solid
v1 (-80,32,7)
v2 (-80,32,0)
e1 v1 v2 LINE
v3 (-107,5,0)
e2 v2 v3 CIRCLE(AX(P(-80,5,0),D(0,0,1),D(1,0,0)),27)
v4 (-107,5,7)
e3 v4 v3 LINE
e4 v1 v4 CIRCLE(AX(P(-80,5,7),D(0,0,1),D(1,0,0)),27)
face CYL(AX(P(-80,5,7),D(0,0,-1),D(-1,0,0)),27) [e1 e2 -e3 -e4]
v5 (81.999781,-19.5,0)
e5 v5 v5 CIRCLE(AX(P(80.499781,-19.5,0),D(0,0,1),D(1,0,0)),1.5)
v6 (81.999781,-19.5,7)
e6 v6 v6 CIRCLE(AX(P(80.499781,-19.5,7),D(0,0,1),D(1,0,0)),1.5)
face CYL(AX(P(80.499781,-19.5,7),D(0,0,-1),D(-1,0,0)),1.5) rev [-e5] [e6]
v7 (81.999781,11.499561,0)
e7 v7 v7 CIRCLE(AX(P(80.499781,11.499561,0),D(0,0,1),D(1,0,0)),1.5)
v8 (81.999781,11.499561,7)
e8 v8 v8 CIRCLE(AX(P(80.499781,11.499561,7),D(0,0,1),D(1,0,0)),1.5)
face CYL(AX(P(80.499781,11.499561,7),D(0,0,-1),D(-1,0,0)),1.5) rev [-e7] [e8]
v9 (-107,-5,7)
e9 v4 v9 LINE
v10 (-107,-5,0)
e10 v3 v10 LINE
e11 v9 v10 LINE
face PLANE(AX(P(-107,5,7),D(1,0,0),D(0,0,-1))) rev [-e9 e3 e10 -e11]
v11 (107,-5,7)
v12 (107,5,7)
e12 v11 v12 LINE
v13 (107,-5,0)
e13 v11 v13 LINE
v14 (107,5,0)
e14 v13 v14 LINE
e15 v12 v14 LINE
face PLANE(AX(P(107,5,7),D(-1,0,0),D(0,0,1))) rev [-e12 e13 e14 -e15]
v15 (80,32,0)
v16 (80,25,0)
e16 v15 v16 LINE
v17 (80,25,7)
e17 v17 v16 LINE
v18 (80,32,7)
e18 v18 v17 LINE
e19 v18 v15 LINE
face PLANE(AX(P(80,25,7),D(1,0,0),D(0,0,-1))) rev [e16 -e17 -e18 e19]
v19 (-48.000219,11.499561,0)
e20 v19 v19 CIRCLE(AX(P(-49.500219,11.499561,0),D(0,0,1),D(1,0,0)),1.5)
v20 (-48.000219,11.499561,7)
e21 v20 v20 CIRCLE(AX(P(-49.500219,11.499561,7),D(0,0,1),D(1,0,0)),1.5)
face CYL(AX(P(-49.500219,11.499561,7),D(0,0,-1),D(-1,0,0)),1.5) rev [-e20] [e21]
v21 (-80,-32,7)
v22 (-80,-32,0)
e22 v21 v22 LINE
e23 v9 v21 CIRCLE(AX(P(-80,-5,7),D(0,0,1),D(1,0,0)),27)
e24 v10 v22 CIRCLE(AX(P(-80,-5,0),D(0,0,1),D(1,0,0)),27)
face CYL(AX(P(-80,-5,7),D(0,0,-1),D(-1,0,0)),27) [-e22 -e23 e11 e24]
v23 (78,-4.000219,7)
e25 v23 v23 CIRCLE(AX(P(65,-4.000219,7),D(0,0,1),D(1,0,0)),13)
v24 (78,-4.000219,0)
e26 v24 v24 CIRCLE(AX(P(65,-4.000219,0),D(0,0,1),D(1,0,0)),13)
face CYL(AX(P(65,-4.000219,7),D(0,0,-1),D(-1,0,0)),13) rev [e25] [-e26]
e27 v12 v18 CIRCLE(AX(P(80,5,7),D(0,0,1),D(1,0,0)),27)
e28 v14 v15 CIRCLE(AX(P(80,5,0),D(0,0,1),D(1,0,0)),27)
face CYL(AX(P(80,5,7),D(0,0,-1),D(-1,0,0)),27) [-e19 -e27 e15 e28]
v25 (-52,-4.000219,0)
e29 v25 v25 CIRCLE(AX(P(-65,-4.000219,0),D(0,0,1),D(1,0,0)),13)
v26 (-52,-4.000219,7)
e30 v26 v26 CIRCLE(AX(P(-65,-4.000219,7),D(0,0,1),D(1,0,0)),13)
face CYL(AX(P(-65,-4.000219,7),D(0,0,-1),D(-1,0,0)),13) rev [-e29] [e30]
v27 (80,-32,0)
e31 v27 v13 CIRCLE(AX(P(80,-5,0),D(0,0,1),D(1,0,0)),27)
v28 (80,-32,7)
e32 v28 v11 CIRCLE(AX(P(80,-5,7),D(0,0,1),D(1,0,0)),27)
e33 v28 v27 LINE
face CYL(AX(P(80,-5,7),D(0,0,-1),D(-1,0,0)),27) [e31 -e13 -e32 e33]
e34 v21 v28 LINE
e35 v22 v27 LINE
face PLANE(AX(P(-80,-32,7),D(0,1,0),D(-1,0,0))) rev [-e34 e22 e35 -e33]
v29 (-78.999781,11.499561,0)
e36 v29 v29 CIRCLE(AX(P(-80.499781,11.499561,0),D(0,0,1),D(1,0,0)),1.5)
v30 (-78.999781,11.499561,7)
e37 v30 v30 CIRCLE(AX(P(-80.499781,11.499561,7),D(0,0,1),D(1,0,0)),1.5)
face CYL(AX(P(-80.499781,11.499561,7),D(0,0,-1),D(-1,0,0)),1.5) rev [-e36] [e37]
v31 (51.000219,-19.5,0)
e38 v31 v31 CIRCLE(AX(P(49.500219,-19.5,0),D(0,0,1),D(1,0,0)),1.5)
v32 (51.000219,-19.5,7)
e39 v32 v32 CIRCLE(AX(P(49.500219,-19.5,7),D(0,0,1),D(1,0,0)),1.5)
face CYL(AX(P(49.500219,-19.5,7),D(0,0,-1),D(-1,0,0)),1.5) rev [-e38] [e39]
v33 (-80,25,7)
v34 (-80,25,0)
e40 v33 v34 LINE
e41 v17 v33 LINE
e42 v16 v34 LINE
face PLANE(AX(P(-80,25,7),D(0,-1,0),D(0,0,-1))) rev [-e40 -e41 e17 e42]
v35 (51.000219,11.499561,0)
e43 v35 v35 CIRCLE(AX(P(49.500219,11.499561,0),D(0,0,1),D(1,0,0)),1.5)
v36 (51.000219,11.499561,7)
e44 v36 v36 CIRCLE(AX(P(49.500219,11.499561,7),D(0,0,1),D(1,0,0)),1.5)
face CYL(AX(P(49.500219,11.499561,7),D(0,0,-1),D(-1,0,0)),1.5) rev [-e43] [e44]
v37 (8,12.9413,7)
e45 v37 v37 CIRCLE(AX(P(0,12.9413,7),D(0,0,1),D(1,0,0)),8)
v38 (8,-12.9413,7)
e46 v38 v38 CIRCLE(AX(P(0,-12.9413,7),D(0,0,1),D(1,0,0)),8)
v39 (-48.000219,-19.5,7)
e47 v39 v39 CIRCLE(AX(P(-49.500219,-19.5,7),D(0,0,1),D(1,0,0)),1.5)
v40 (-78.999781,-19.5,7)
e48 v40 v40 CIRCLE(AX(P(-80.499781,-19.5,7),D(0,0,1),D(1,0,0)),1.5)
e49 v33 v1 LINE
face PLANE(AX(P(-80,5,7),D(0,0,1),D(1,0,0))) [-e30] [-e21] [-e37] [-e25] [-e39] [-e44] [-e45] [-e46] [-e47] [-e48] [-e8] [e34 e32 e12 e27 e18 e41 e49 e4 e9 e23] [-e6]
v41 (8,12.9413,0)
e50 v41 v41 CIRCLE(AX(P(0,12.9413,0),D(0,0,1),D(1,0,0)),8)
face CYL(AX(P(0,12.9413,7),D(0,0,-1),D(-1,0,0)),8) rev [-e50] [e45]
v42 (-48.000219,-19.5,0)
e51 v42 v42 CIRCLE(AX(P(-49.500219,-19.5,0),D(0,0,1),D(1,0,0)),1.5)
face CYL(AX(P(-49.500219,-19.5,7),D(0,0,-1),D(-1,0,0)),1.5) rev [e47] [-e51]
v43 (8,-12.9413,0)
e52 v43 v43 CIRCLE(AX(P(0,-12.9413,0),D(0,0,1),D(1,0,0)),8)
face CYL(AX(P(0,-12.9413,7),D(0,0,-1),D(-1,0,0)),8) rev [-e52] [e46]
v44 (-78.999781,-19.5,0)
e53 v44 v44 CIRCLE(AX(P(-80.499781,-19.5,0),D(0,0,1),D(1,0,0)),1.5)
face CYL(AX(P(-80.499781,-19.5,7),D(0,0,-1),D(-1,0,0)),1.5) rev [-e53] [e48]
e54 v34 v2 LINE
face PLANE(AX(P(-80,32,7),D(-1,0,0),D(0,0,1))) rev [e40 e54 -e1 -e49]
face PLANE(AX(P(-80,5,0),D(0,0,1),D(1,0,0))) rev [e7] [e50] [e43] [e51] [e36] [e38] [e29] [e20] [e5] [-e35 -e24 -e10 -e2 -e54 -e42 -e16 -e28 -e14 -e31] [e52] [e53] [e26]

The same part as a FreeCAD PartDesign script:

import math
import FreeCAD as App
import Part
import Sketcher

V = App.Vector
Q = App.Units.Quantity

doc = App.newDocument("Part")
params = doc.addObject("Spreadsheet::Sheet", "Params")
for row, (alias, value) in enumerate([
    ("sketch1_diameter", "3 mm"),
    ("sketch1_diameter2", "16 mm"),
    ("sketch1_diameter3", "26 mm"),
    ("sketch1_radius", "27 mm"),
    ("sketch1_width", "160 mm"),
    ("pad1_length", "7 mm"),
], start=1):
    params.set(f"A{row}", alias)
    params.set(f"B{row}", "=" + value)
    params.setAlias(f"B{row}", alias)

body = doc.addObject("PartDesign::Body", "Body")

# Sketch on XY plane
sketch1 = body.newObject("Sketcher::SketchObject", "Sketch")
sketch1.AttachmentSupport = (doc.getObject("XY_Plane"), [""])
sketch1.MapMode = "FlatFace"
sketch1.addGeometry(Part.LineSegment(V(-80, 25, 0), V(-80, 32, 0)), False)
sketch1.addGeometry(Part.ArcOfCircle(Part.Circle(V(-80, 5, 0), V(0, 0, 1), 27), math.radians(90), math.radians(180)), False)
sketch1.addGeometry(Part.LineSegment(V(-107, 5, 0), V(-107, -5, 0)), False)
sketch1.addGeometry(Part.ArcOfCircle(Part.Circle(V(-80, -5, 0), V(0, 0, 1), 27), math.radians(180), math.radians(270)), False)
sketch1.addGeometry(Part.LineSegment(V(-80, -32, 0), V(80, -32, 0)), False)
sketch1.addGeometry(Part.ArcOfCircle(Part.Circle(V(80, -5, 0), V(0, 0, 1), 27), math.radians(-90), math.radians(0)), False)
sketch1.addGeometry(Part.LineSegment(V(107, -5, 0), V(107, 5, 0)), False)
sketch1.addGeometry(Part.ArcOfCircle(Part.Circle(V(80, 5, 0), V(0, 0, 1), 27), math.radians(0), math.radians(90)), False)
sketch1.addGeometry(Part.LineSegment(V(80, 32, 0), V(80, 25, 0)), False)
sketch1.addGeometry(Part.LineSegment(V(80, 25, 0), V(-80, 25, 0)), False)
sketch1.addGeometry(Part.Circle(V(80.5, -19.5, 0), V(0, 0, 1), 1.5), False)
sketch1.addGeometry(Part.Circle(V(49.5, -19.5, 0), V(0, 0, 1), 1.5), False)
sketch1.addGeometry(Part.Circle(V(0, -12.9, 0), V(0, 0, 1), 8), False)
sketch1.addGeometry(Part.Circle(V(65, -4, 0), V(0, 0, 1), 13), False)
sketch1.addGeometry(Part.Circle(V(-49.5, -19.5, 0), V(0, 0, 1), 1.5), False)
sketch1.addGeometry(Part.Circle(V(-80.5, -19.5, 0), V(0, 0, 1), 1.5), False)
sketch1.addGeometry(Part.Circle(V(-65, -4, 0), V(0, 0, 1), 13), False)
sketch1.addGeometry(Part.Circle(V(80.5, 11.5, 0), V(0, 0, 1), 1.5), False)
sketch1.addGeometry(Part.Circle(V(49.5, 11.5, 0), V(0, 0, 1), 1.5), False)
sketch1.addGeometry(Part.Circle(V(0, 12.9, 0), V(0, 0, 1), 8), False)
sketch1.addGeometry(Part.Circle(V(-49.5, 11.5, 0), V(0, 0, 1), 1.5), False)
sketch1.addGeometry(Part.Circle(V(-80.5, 11.5, 0), V(0, 0, 1), 1.5), False)
sketch1.addConstraint(Sketcher.Constraint("Coincident", 0, 2, 1, 1))
sketch1.addConstraint(Sketcher.Constraint("Tangent", 1, 2, 2, 1))
sketch1.addConstraint(Sketcher.Constraint("Tangent", 2, 2, 3, 1))
sketch1.addConstraint(Sketcher.Constraint("Tangent", 3, 2, 4, 1))
sketch1.addConstraint(Sketcher.Constraint("Tangent", 4, 2, 5, 1))
sketch1.addConstraint(Sketcher.Constraint("Tangent", 5, 2, 6, 1))
sketch1.addConstraint(Sketcher.Constraint("Tangent", 6, 2, 7, 1))
sketch1.addConstraint(Sketcher.Constraint("Coincident", 7, 2, 8, 1))
sketch1.addConstraint(Sketcher.Constraint("Coincident", 8, 2, 9, 1))
sketch1.addConstraint(Sketcher.Constraint("Coincident", 9, 2, 0, 1))
sketch1.addConstraint(Sketcher.Constraint("Vertical", 0))
sketch1.addConstraint(Sketcher.Constraint("Vertical", 2))
sketch1.addConstraint(Sketcher.Constraint("Horizontal", 4))
sketch1.addConstraint(Sketcher.Constraint("Vertical", 6))
sketch1.addConstraint(Sketcher.Constraint("Vertical", 8))
sketch1.addConstraint(Sketcher.Constraint("Horizontal", 9))
sketch1.addConstraint(Sketcher.Constraint("Equal", 1, 3))
sketch1.addConstraint(Sketcher.Constraint("Equal", 3, 5))
sketch1.addConstraint(Sketcher.Constraint("Equal", 5, 7))
sketch1.addConstraint(Sketcher.Constraint("Equal", 10, 11))
sketch1.addConstraint(Sketcher.Constraint("Equal", 11, 14))
sketch1.addConstraint(Sketcher.Constraint("Equal", 14, 15))
sketch1.addConstraint(Sketcher.Constraint("Equal", 13, 16))
sketch1.addConstraint(Sketcher.Constraint("Equal", 15, 17))
sketch1.addConstraint(Sketcher.Constraint("Equal", 17, 18))
sketch1.addConstraint(Sketcher.Constraint("Equal", 12, 19))
sketch1.addConstraint(Sketcher.Constraint("Equal", 18, 20))
sketch1.addConstraint(Sketcher.Constraint("Equal", 20, 21))
sketch1.addConstraint(Sketcher.Constraint("Symmetric", 1, 3, 5, 3, -1, 1))
sketch1.addConstraint(Sketcher.Constraint("Symmetric", 12, 3, 19, 3, -1, 1))
sketch1.addConstraint(Sketcher.Constraint("Symmetric", 3, 2, 7, 2, -1, 1))
sketch1.addConstraint(Sketcher.Constraint("Symmetric", 11, 3, 14, 3, -2))
sketch1.addConstraint(Sketcher.Constraint("Symmetric", 10, 3, 15, 3, -2))
sketch1.addConstraint(Sketcher.Constraint("Symmetric", 13, 3, 16, 3, -2))
sketch1.addConstraint(Sketcher.Constraint("Symmetric", 18, 3, 20, 3, -2))
sketch1.addConstraint(Sketcher.Constraint("Symmetric", 17, 3, 21, 3, -2))
sketch1.addConstraint(Sketcher.Constraint("PointOnObject", 12, 3, -2))
sketch1.addConstraint(Sketcher.Constraint("Horizontal", 10, 3, 11, 3))
sketch1.addConstraint(Sketcher.Constraint("Horizontal", 17, 3, 18, 3))
sketch1.addConstraint(Sketcher.Constraint("Vertical", 10, 3, 17, 3))
sketch1.addConstraint(Sketcher.Constraint("Vertical", 11, 3, 18, 3))
sketch1.addConstraint(Sketcher.Constraint("Vertical", 3, 3, 0, 2))
sketch1.addConstraint(Sketcher.Constraint("Diameter", 10, Q("3 mm")))
sketch1.addConstraint(Sketcher.Constraint("Diameter", 12, Q("16 mm")))
sketch1.addConstraint(Sketcher.Constraint("Diameter", 13, Q("26 mm")))
sketch1.addConstraint(Sketcher.Constraint("Radius", 1, Q("27 mm")))
sketch1.addConstraint(Sketcher.Constraint("DistanceX", 4, 1, 4, 2, Q("160 mm")))
sketch1.addConstraint(Sketcher.Constraint("DistanceY", 0, 1, 0, 2, Q("7 mm")))
sketch1.addConstraint(Sketcher.Constraint("DistanceY", 2, 2, 2, 1, Q("10 mm")))
sketch1.addConstraint(Sketcher.Constraint("DistanceX", -1, 1, 13, 3, Q("65 mm")))
sketch1.addConstraint(Sketcher.Constraint("DistanceX", 15, 3, 11, 3, Q("130 mm")))
sketch1.addConstraint(Sketcher.Constraint("DistanceY", 10, 3, -1, 1, Q("19.5 mm")))
sketch1.addConstraint(Sketcher.Constraint("DistanceY", 12, 3, -1, 1, Q("12.9413 mm")))
sketch1.addConstraint(Sketcher.Constraint("DistanceX", -1, 1, 10, 3, Q("80.499781 mm")))
sketch1.addConstraint(Sketcher.Constraint("DistanceY", 13, 3, -1, 1, Q("4.000219 mm")))
sketch1.addConstraint(Sketcher.Constraint("DistanceY", -1, 1, 17, 3, Q("11.499561 mm")))
sketch1.setExpression("Constraints[42]", "Params.sketch1_diameter")
sketch1.setExpression("Constraints[43]", "Params.sketch1_diameter2")
sketch1.setExpression("Constraints[44]", "Params.sketch1_diameter3")
sketch1.setExpression("Constraints[45]", "Params.sketch1_radius")
sketch1.setExpression("Constraints[46]", "Params.sketch1_width")
pad1 = body.newObject("PartDesign::Pad", "Pad")
pad1.Profile = sketch1
pad1.setExpression("Length", "Params.pad1_length")

doc.recompute()
